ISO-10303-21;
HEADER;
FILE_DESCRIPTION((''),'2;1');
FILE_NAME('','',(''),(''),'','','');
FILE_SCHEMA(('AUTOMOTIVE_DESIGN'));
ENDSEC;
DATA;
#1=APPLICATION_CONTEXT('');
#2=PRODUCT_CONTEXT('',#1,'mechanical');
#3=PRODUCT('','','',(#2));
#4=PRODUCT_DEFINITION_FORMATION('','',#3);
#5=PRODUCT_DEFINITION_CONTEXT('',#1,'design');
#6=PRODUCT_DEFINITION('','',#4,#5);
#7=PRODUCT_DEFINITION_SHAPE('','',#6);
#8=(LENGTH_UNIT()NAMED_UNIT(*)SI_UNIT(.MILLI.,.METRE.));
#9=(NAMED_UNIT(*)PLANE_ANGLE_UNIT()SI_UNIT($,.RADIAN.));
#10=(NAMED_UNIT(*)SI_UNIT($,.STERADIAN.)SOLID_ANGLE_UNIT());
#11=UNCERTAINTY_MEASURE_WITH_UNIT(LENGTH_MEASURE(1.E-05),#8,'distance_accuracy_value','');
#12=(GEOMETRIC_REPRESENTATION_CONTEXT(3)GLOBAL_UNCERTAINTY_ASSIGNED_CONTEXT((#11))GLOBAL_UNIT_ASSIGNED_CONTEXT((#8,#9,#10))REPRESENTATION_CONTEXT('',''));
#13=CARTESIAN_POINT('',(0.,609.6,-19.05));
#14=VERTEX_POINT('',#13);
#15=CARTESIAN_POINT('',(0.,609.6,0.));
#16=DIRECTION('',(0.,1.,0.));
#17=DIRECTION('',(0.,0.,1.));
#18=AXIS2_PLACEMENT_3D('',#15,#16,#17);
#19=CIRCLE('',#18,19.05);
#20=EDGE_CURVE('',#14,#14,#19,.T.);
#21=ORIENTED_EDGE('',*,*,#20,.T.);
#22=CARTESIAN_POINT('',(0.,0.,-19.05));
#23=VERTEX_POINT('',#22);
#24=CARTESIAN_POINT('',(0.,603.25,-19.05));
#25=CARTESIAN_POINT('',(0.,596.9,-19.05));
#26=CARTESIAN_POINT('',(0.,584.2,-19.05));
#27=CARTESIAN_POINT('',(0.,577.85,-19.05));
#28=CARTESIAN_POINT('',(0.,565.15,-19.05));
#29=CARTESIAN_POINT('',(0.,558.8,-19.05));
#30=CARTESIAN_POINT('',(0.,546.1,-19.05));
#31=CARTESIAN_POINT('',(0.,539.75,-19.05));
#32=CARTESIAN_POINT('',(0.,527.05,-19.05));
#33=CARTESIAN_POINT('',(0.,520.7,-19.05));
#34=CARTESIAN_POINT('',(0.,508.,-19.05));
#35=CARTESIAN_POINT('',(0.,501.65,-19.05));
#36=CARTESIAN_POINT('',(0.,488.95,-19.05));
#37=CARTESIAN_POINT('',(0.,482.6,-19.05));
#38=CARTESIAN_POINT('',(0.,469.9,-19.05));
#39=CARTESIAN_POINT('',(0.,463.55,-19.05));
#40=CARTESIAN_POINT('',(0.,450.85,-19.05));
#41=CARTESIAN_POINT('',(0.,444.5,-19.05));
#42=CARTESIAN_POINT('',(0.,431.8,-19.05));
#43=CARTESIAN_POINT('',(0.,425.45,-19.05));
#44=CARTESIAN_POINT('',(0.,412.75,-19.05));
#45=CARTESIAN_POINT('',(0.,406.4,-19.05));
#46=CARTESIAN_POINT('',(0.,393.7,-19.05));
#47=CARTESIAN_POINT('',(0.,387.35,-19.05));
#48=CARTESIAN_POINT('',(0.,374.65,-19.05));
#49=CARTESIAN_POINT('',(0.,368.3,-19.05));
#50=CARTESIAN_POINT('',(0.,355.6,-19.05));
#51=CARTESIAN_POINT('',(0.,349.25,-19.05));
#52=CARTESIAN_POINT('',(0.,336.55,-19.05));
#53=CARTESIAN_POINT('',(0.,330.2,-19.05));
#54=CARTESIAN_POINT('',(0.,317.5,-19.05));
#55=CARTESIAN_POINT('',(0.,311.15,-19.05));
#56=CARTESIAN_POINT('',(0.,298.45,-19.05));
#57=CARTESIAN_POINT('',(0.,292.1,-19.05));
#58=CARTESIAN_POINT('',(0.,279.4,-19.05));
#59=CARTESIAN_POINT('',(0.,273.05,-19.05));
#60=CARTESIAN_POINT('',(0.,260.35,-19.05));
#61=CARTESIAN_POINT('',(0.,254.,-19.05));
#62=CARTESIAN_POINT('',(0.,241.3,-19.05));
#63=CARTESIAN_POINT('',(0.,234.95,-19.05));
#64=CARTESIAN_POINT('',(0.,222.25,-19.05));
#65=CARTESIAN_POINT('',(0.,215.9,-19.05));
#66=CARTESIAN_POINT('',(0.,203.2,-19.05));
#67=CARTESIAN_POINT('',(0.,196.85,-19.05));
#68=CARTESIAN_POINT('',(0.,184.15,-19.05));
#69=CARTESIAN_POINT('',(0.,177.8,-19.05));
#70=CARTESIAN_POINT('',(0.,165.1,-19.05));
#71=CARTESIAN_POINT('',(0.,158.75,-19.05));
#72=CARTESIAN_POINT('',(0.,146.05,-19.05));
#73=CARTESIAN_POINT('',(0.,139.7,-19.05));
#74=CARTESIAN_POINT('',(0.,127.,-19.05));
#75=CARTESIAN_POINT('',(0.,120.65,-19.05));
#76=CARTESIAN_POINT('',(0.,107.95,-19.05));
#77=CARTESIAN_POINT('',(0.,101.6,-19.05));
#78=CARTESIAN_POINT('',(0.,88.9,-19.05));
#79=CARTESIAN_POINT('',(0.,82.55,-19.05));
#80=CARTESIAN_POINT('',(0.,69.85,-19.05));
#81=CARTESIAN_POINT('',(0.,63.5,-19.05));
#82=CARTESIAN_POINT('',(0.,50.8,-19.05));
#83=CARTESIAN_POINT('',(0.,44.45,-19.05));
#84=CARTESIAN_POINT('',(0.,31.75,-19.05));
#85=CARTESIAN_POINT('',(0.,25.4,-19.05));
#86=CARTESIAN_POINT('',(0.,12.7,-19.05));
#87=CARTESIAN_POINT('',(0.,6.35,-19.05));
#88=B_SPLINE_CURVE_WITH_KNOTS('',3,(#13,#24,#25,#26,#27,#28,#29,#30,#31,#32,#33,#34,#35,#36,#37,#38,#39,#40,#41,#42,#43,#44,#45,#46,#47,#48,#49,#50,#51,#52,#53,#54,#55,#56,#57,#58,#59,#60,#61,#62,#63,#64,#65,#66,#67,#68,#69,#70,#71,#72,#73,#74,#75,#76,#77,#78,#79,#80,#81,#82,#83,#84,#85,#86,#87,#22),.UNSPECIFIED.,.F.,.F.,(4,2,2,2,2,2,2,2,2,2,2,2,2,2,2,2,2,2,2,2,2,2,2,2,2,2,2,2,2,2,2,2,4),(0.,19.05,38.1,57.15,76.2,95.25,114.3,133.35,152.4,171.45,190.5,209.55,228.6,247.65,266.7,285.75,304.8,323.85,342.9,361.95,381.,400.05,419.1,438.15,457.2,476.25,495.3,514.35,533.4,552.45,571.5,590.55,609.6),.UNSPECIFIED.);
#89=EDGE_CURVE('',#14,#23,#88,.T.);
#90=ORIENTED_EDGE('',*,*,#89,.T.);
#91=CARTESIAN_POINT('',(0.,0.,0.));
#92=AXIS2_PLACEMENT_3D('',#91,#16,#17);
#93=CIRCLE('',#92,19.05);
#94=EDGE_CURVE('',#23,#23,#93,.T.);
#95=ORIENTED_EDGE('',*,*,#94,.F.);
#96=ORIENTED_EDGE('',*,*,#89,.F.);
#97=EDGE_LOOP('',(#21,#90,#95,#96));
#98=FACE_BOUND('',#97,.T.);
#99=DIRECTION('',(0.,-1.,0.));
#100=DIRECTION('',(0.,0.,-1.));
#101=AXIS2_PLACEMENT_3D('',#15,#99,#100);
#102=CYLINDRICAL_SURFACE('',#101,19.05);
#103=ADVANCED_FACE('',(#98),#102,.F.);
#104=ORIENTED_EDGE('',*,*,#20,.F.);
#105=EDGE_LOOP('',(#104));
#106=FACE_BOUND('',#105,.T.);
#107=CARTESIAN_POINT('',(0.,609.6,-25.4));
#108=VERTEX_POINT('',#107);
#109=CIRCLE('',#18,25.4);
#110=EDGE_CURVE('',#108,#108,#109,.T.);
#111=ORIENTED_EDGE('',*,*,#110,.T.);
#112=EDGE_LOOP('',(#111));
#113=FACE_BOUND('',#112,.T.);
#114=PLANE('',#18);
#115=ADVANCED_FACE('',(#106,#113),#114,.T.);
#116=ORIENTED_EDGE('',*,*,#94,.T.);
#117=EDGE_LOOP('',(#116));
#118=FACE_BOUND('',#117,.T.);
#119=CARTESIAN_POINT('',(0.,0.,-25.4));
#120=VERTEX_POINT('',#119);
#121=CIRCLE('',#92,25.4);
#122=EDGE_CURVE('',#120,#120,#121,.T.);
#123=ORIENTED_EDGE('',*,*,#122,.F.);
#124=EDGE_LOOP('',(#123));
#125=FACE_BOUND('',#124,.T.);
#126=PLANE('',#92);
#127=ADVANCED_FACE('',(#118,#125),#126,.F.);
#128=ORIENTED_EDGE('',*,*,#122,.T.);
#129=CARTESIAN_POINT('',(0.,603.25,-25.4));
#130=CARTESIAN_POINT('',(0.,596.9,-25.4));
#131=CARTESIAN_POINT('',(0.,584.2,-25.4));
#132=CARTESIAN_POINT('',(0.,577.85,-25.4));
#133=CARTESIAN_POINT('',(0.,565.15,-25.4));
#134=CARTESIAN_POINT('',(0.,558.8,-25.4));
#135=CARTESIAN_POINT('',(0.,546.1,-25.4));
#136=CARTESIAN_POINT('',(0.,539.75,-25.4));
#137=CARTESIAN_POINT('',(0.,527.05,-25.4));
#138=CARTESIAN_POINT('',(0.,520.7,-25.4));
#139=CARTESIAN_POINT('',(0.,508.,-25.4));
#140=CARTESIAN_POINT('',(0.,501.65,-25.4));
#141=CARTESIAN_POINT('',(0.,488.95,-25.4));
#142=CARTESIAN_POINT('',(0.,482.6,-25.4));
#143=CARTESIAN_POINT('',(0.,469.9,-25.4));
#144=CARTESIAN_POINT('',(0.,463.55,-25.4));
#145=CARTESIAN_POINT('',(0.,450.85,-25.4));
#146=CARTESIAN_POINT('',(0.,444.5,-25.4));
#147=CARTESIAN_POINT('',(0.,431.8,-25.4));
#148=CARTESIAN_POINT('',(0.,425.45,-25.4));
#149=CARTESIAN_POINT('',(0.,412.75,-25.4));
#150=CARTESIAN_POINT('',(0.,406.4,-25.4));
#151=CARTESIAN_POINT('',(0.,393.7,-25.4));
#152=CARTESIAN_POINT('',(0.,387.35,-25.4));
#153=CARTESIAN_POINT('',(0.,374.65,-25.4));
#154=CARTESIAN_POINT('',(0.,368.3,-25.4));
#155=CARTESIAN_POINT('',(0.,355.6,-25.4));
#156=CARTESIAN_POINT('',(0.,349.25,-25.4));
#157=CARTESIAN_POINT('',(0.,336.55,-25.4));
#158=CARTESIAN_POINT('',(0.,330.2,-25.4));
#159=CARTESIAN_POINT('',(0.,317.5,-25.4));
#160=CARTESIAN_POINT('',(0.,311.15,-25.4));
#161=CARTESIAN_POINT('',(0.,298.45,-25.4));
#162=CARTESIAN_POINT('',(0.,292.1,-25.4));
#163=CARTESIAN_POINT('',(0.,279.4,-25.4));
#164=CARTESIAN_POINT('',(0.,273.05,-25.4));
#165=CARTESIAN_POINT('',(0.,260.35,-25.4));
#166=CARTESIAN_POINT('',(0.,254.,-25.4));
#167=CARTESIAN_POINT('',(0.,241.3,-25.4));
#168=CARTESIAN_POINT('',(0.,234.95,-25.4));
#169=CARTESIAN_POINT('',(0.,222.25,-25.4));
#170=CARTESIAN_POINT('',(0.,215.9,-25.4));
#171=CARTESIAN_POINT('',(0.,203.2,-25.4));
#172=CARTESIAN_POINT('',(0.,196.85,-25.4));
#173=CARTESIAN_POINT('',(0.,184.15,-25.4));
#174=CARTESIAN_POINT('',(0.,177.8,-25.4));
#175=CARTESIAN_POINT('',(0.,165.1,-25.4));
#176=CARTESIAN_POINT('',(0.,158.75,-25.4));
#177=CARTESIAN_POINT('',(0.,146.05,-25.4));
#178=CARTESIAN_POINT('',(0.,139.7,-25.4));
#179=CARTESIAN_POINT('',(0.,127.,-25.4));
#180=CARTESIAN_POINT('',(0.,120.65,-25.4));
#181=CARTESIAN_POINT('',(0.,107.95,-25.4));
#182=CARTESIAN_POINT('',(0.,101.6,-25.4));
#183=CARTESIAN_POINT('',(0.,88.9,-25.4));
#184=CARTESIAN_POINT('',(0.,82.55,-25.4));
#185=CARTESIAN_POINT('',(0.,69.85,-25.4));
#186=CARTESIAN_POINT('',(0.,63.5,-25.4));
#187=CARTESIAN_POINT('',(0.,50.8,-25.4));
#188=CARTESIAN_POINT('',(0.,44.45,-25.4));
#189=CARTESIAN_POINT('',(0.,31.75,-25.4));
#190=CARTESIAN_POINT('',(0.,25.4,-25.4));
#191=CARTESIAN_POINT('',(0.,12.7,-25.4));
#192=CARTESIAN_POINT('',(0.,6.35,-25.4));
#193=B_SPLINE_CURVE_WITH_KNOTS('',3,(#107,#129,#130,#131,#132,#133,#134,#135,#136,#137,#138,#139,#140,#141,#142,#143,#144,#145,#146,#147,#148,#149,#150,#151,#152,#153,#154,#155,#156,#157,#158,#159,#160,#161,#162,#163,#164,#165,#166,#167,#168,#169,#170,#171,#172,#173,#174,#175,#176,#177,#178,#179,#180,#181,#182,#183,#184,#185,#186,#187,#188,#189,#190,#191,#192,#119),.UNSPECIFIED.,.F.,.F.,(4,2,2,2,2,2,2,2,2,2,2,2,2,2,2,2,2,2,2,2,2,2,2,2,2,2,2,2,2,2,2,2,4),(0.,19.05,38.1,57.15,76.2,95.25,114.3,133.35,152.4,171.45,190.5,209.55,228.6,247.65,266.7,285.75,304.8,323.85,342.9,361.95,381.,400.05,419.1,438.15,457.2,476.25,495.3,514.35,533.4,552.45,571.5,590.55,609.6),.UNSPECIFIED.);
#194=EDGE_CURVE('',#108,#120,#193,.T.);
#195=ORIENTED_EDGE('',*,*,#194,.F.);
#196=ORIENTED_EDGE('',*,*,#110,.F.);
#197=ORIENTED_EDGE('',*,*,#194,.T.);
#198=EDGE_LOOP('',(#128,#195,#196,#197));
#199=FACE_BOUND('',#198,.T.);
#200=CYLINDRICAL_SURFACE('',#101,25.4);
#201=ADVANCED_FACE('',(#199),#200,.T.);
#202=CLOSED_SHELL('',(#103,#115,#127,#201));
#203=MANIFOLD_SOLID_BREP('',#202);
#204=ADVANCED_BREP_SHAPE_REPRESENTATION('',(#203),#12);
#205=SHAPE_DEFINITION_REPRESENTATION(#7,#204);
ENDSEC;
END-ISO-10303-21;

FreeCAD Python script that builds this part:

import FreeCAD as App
import Part
import Sketcher

V = App.Vector
Q = App.Units.Quantity

doc = App.newDocument("Part")
body = doc.addObject("PartDesign::Body", "Body")

# Sketch on XZ plane
sketch1 = body.newObject("Sketcher::SketchObject", "Sketch")
sketch1.AttachmentSupport = (doc.getObject("XZ_Plane"), [""])
sketch1.MapMode = "FlatFace"
sketch1.addGeometry([
    Part.Circle(V(0, 0, 0), V(0, 0, 1), 25.4),
    Part.Circle(V(0, 0, 0), V(0, 0, 1), 19.05),
], False)
sketch1.addConstraint([
    Sketcher.Constraint("Coincident", 0, 3, -1, 1),
    Sketcher.Constraint("Coincident", 1, 3, -1, 1),
    Sketcher.Constraint("Diameter", 0, Q("2 in")),
    Sketcher.Constraint("Diameter", 1, Q("1.5 in")),
])
pad1 = body.newObject("PartDesign::Pad", "Pad")
pad1.Profile = sketch1
pad1.Length = Q("24 in")
pad1.Reversed = True

doc.recompute()
